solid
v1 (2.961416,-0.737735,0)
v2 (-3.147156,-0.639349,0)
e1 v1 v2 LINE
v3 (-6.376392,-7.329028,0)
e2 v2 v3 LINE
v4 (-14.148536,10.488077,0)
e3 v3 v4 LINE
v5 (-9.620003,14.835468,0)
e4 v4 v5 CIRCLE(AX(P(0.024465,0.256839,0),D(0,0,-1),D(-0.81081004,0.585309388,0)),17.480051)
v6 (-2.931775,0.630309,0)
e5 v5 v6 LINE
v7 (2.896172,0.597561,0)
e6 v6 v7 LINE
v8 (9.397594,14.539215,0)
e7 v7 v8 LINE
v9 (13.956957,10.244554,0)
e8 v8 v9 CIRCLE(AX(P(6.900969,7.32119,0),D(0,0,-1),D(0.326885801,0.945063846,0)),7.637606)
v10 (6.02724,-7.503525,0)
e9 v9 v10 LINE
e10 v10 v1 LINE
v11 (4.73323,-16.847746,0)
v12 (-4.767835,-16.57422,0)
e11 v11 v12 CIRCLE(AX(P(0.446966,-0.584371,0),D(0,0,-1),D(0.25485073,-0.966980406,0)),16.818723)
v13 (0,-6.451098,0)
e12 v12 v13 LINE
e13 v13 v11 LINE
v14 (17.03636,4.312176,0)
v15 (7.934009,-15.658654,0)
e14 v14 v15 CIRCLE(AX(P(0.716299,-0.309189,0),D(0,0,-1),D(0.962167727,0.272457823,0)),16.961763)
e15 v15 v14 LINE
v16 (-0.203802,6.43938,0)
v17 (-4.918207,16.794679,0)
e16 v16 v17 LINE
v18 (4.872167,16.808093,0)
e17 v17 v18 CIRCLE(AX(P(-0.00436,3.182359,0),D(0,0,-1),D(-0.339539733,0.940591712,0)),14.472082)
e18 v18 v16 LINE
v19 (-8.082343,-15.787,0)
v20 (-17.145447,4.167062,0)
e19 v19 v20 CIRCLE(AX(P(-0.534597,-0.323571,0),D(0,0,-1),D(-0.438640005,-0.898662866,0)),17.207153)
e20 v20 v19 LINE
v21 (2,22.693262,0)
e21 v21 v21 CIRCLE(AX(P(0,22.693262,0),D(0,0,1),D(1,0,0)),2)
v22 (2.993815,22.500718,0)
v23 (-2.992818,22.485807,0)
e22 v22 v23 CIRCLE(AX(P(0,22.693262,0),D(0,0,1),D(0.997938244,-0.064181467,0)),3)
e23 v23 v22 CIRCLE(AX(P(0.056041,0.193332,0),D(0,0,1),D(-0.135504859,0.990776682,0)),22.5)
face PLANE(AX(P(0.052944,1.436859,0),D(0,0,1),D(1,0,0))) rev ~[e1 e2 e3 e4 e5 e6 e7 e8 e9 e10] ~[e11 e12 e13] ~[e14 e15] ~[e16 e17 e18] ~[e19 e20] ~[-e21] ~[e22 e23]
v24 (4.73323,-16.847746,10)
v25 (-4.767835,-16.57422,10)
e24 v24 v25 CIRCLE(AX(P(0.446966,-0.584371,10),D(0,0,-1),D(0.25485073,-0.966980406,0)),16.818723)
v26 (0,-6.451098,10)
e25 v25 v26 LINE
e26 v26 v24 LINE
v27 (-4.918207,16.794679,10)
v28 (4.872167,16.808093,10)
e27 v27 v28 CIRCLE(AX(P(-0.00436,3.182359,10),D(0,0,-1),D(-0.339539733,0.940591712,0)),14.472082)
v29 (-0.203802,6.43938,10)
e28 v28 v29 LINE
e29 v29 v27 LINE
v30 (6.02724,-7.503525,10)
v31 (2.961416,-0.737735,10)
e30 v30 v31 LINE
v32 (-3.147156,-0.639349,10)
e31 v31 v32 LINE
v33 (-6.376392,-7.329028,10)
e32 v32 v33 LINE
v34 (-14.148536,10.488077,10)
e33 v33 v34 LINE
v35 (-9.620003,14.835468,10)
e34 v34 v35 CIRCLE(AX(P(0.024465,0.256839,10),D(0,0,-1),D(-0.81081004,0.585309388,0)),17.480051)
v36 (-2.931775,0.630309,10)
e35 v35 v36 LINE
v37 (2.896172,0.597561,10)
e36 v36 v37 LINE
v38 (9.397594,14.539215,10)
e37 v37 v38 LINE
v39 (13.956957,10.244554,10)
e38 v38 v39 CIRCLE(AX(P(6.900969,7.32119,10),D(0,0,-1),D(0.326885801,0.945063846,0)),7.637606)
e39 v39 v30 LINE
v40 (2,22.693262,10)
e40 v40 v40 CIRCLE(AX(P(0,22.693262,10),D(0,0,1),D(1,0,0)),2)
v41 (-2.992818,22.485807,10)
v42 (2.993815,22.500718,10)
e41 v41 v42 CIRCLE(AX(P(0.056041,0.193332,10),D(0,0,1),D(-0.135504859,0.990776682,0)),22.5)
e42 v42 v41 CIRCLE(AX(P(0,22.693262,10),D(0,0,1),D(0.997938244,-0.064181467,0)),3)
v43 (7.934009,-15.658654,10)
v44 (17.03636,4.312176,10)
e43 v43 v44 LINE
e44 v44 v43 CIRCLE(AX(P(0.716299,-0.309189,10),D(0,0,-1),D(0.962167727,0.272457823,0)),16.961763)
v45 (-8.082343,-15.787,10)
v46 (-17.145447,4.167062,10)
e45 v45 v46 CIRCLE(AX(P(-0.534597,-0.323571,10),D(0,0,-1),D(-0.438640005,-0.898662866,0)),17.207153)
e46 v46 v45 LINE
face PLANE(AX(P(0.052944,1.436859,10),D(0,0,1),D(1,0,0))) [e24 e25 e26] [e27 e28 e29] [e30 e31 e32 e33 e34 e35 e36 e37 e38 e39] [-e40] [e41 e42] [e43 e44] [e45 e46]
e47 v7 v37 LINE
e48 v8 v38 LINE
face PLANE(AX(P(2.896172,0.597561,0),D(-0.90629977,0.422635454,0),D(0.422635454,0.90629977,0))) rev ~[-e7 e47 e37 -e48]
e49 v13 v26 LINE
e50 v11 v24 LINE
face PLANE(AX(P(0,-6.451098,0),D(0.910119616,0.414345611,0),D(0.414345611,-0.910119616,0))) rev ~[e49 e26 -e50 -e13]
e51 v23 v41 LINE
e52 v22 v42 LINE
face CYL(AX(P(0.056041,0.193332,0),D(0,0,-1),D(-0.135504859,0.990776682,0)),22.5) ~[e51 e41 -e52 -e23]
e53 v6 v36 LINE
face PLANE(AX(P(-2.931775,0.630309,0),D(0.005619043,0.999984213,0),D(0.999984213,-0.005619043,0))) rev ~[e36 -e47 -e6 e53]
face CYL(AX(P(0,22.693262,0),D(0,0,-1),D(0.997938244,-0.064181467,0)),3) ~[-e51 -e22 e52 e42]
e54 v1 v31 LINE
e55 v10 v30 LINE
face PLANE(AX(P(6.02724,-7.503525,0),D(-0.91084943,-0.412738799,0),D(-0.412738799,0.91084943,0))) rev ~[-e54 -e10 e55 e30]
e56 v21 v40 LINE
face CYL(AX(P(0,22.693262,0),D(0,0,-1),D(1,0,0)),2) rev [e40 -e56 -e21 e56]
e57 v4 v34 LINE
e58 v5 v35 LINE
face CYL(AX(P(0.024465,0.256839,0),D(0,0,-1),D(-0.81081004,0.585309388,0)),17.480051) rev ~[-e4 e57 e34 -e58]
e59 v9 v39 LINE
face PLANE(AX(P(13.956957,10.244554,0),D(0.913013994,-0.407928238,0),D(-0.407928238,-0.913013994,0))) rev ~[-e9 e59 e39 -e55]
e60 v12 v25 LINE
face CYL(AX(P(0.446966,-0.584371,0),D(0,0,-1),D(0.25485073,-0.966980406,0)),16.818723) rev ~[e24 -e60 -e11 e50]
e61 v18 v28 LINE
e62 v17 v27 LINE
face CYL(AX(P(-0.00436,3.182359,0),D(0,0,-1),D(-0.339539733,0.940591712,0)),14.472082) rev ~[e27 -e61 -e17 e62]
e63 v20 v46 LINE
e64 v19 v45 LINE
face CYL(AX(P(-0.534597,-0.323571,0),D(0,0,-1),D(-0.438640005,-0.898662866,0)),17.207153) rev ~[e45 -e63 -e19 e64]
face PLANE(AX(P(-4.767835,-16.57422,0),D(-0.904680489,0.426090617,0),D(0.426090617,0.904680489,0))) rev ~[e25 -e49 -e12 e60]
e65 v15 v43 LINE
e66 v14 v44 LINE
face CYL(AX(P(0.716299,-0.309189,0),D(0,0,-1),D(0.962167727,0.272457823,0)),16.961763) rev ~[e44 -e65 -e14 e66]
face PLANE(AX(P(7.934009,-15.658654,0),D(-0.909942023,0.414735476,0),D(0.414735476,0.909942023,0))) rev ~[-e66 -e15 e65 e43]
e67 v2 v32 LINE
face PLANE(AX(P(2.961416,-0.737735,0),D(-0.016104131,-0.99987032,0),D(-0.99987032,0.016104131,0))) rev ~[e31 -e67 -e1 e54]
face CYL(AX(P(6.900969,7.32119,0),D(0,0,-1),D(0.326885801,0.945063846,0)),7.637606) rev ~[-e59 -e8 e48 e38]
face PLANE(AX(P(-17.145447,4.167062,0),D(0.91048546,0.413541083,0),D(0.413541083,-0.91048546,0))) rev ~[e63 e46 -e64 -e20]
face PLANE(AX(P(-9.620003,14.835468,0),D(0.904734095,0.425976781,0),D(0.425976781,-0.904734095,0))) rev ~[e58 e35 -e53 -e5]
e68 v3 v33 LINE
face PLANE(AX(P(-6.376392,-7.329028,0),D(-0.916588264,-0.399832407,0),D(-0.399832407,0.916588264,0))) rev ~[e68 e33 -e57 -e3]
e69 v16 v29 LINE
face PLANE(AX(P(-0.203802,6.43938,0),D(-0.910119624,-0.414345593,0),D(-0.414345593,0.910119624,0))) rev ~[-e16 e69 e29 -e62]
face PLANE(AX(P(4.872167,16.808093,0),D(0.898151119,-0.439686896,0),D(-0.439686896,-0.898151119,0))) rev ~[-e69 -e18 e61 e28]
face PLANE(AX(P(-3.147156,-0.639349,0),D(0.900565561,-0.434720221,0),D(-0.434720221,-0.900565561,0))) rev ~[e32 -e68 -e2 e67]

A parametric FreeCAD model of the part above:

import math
import FreeCAD as App
import Part
import Sketcher
from FreeCAD import Vector

doc = App.newDocument("Part")
body = doc.addObject("PartDesign::Body", "Body")

sketch1 = doc.addObject("Sketcher::SketchObject", "Sketch")
body.addObject(sketch1)
sketch1.AttachmentSupport = (doc.XY_Plane, [""])
sketch1.MapMode = "FlatFace"
sketch1.addGeometry([
    Part.ArcOfCircle(Part.Circle(Vector(0, 22.693262, 0), Vector(0, 0, 1), 3), math.radians(-3.679857), math.radians(183.965271)),
    Part.ArcOfCircle(Part.Circle(Vector(0.056041, 0.193332, 0), Vector(0, 0, 1), 22.5), math.radians(97.787814), math.radians(442.4976)),
    Part.LineSegment(Vector(-17.145447, 4.167062, 0), Vector(-8.082343, -15.787, 0)),
    Part.ArcOfCircle(Part.Circle(Vector(-0.534597, -0.323571, 0), Vector(0, 0, 1), 17.207153), math.radians(164.87209), math.radians(243.98286)),
    Part.LineSegment(Vector(0, -6.451098, 0), Vector(4.73323, -16.847746, 0)),
    Part.ArcOfCircle(Part.Circle(Vector(0.446966, -0.584371, 0), Vector(0, 0, 1), 16.818723), math.radians(-108.062804), math.radians(-75.23526)),
    Part.LineSegment(Vector(-4.767835, -16.57422, 0), Vector(0, -6.451098, 0)),
    Part.LineSegment(Vector(7.934009, -15.658654, 0), Vector(17.03636, 4.312176, 0)),
    Part.ArcOfCircle(Part.Circle(Vector(0.716299, -0.309189, 0), Vector(0, 0, 1), 16.961763), math.radians(-64.815893), math.radians(15.810574)),
    Part.LineSegment(Vector(-6.376392, -7.329028, 0), Vector(-14.148536, 10.488077, 0)),
    Part.ArcOfCircle(Part.Circle(Vector(0.024465, 0.256839, 0), Vector(0, 0, 1), 17.480051), math.radians(123.486562), math.radians(144.17515)),
    Part.LineSegment(Vector(-9.620003, 14.835468, 0), Vector(-2.931775, 0.630309, 0)),
    Part.LineSegment(Vector(-2.931775, 0.630309, 0), Vector(2.896172, 0.597561, 0)),
    Part.LineSegment(Vector(2.896172, 0.597561, 0), Vector(9.397594, 14.539215, 0)),
    Part.ArcOfCircle(Part.Circle(Vector(6.900969, 7.32119, 0), Vector(0, 0, 1), 7.637606), math.radians(22.504701), math.radians(70.920135)),
    Part.LineSegment(Vector(13.956957, 10.244554, 0), Vector(6.02724, -7.503525, 0)),
    Part.LineSegment(Vector(6.02724, -7.503525, 0), Vector(2.961416, -0.737735, 0)),
    Part.LineSegment(Vector(2.961416, -0.737735, 0), Vector(-3.147156, -0.639349, 0)),
    Part.LineSegment(Vector(-3.147156, -0.639349, 0), Vector(-6.376392, -7.329028, 0)),
    Part.LineSegment(Vector(-0.203802, 6.43938, 0), Vector(-4.918207, 16.794679, 0)),
    Part.ArcOfCircle(Part.Circle(Vector(-0.00436, 3.182359, 0), Vector(0, 0, 1), 14.472082), math.radians(70.30817), math.radians(109.848835)),
    Part.LineSegment(Vector(4.872167, 16.808093, 0), Vector(-0.203802, 6.43938, 0)),
    Part.Circle(Vector(0, 22.693262, 0), Vector(0, 0, 1), 2),
], False)
sketch1.addConstraint([
    Sketcher.Constraint("Coincident", 0, 1, 1, 2),
    Sketcher.Constraint("Coincident", 1, 1, 0, 2),
    Sketcher.Constraint("Coincident", 2, 1, 3, 1),
    Sketcher.Constraint("Coincident", 3, 2, 2, 2),
    Sketcher.Constraint("Coincident", 4, 2, 5, 2),
    Sketcher.Constraint("Coincident", 5, 1, 6, 1),
    Sketcher.Constraint("Coincident", 6, 2, 4, 1),
    Sketcher.Constraint("Coincident", 7, 1, 8, 1),
    Sketcher.Constraint("Coincident", 8, 2, 7, 2),
    Sketcher.Constraint("Coincident", 9, 2, 10, 2),
    Sketcher.Constraint("Coincident", 10, 1, 11, 1),
    Sketcher.Constraint("Coincident", 11, 2, 12, 1),
    Sketcher.Constraint("Coincident", 12, 2, 13, 1),
    Sketcher.Constraint("Coincident", 13, 2, 14, 2),
    Sketcher.Constraint("Coincident", 14, 1, 15, 1),
    Sketcher.Constraint("Coincident", 15, 2, 16, 1),
    Sketcher.Constraint("Coincident", 16, 2, 17, 1),
    Sketcher.Constraint("Coincident", 17, 2, 18, 1),
    Sketcher.Constraint("Coincident", 18, 2, 9, 1),
    Sketcher.Constraint("Coincident", 19, 2, 20, 2),
    Sketcher.Constraint("Coincident", 20, 1, 21, 1),
    Sketcher.Constraint("Coincident", 21, 2, 19, 1),
    Sketcher.Constraint("Coincident", 22, 3, 0, 3),
    Sketcher.Constraint("PointOnObject", 0, 3, -2),
    Sketcher.Constraint("PointOnObject", 6, 2, -2),
    Sketcher.Constraint("Parallel", 4, 19),
    Sketcher.Constraint("Diameter", 22, 4.0),
    Sketcher.Constraint("Radius", 0, 3.0),
    Sketcher.Constraint("Radius", 1, 22.5),
    Sketcher.Constraint("Radius", 10, 17.480051),
    Sketcher.Constraint("Radius", 20, 14.472082),
    Sketcher.Constraint("Distance", 15, 19.439),
    Sketcher.Constraint("Distance", 16, 7.428),
    Sketcher.Constraint("DistanceY", 3, 2, -1, 1, 15.787),
    Sketcher.Constraint("Radius", 3, 17.207153),
    Sketcher.Constraint("Radius", 5, 16.818723),
    Sketcher.Constraint("Radius", 8, 16.961763),
    Sketcher.Constraint("Radius", 14, 7.637606),
    Sketcher.Constraint("DistanceX", 9, 2, 10, 3, 14.173001),
    Sketcher.Constraint("DistanceX", -1, 1, 8, 3, 0.716299),
    Sketcher.Constraint("DistanceY", 5, 3, 3, 3, 0.2608),
    Sketcher.Constraint("DistanceX", 10, 3, 5, 3, 0.422502),
    Sketcher.Constraint("DistanceX", 20, 3, 1, 3, 0.060402),
    Sketcher.Constraint("DistanceX", 5, 1, 5, 3, 5.214801),
    Sketcher.Constraint("DistanceY", 8, 3, 11, 2, 0.939498),
    Sketcher.Constraint("Distance", 2, 21.915849),
    Sketcher.Constraint("Distance", 6, 11.189721),
    Sketcher.Constraint("Distance", 11, 15.700922),
    Sketcher.Constraint("Distance", 12, 5.828039),
    Sketcher.Constraint("Distance", 13, 15.383049),
    Sketcher.Constraint("Distance", 18, 7.428309),
    Sketcher.Constraint("Distance", 21, 11.544508),
    Sketcher.Constraint("DistanceX", -1, 1, 1, 3, 0.056041),
    Sketcher.Constraint("DistanceY", -1, 1, 1, 3, 0.193332),
    Sketcher.Constraint("DistanceY", 3, 3, -1, 1, 0.323571),
    Sketcher.Constraint("DistanceY", 8, 3, -1, 1, 0.309189),
    Sketcher.Constraint("DistanceY", -1, 1, 10, 3, 0.256839),
    Sketcher.Constraint("DistanceX", -1, 1, 14, 3, 6.900969),
    Sketcher.Constraint("DistanceY", -1, 1, 14, 3, 7.32119),
    Sketcher.Constraint("DistanceY", -1, 1, 20, 3, 3.182359),
    Sketcher.Constraint("DistanceX", -1, 1, 4, 2, 4.73323),
    Sketcher.Constraint("DistanceX", -1, 1, 7, 1, 7.934009),
    Sketcher.Constraint("DistanceX", -1, 1, 8, 2, 17.03636),
    Sketcher.Constraint("DistanceX", -1, 1, 12, 2, 2.896172),
    Sketcher.Constraint("DistanceY", -1, 1, 12, 2, 0.597561),
    Sketcher.Constraint("DistanceX", -1, 1, 15, 2, 6.02724),
    Sketcher.Constraint("DistanceY", 17, 2, -1, 1, 0.639349),
    Sketcher.Constraint("DistanceY", -1, 1, 19, 2, 16.794679),
    Sketcher.Constraint("DistanceY", -1, 1, 21, 2, 6.43938),
    Sketcher.Constraint("DistanceY", 1, 3, 0, 3, 22.49993),
    Sketcher.Constraint("DistanceX", 3, 3, 1, 3, 0.590639),
    Sketcher.Constraint("DistanceX", 3, 3, 10, 3, 0.559062),
    Sketcher.Constraint("DistanceY", 14, 1, 13, 2, 4.294661),
    Sketcher.Constraint("DistanceX", 5, 3, 16, 2, 2.51445),
    Sketcher.Constraint("DistanceX", 17, 2, 11, 2, 0.215381),
    Sketcher.Constraint("DistanceY", 18, 2, 6, 2, 0.87793),
])
pad1 = doc.addObject("PartDesign::Pad", "Pad")
body.addObject(pad1)
pad1.Profile = sketch1
pad1.Length = 10

doc.recompute()
